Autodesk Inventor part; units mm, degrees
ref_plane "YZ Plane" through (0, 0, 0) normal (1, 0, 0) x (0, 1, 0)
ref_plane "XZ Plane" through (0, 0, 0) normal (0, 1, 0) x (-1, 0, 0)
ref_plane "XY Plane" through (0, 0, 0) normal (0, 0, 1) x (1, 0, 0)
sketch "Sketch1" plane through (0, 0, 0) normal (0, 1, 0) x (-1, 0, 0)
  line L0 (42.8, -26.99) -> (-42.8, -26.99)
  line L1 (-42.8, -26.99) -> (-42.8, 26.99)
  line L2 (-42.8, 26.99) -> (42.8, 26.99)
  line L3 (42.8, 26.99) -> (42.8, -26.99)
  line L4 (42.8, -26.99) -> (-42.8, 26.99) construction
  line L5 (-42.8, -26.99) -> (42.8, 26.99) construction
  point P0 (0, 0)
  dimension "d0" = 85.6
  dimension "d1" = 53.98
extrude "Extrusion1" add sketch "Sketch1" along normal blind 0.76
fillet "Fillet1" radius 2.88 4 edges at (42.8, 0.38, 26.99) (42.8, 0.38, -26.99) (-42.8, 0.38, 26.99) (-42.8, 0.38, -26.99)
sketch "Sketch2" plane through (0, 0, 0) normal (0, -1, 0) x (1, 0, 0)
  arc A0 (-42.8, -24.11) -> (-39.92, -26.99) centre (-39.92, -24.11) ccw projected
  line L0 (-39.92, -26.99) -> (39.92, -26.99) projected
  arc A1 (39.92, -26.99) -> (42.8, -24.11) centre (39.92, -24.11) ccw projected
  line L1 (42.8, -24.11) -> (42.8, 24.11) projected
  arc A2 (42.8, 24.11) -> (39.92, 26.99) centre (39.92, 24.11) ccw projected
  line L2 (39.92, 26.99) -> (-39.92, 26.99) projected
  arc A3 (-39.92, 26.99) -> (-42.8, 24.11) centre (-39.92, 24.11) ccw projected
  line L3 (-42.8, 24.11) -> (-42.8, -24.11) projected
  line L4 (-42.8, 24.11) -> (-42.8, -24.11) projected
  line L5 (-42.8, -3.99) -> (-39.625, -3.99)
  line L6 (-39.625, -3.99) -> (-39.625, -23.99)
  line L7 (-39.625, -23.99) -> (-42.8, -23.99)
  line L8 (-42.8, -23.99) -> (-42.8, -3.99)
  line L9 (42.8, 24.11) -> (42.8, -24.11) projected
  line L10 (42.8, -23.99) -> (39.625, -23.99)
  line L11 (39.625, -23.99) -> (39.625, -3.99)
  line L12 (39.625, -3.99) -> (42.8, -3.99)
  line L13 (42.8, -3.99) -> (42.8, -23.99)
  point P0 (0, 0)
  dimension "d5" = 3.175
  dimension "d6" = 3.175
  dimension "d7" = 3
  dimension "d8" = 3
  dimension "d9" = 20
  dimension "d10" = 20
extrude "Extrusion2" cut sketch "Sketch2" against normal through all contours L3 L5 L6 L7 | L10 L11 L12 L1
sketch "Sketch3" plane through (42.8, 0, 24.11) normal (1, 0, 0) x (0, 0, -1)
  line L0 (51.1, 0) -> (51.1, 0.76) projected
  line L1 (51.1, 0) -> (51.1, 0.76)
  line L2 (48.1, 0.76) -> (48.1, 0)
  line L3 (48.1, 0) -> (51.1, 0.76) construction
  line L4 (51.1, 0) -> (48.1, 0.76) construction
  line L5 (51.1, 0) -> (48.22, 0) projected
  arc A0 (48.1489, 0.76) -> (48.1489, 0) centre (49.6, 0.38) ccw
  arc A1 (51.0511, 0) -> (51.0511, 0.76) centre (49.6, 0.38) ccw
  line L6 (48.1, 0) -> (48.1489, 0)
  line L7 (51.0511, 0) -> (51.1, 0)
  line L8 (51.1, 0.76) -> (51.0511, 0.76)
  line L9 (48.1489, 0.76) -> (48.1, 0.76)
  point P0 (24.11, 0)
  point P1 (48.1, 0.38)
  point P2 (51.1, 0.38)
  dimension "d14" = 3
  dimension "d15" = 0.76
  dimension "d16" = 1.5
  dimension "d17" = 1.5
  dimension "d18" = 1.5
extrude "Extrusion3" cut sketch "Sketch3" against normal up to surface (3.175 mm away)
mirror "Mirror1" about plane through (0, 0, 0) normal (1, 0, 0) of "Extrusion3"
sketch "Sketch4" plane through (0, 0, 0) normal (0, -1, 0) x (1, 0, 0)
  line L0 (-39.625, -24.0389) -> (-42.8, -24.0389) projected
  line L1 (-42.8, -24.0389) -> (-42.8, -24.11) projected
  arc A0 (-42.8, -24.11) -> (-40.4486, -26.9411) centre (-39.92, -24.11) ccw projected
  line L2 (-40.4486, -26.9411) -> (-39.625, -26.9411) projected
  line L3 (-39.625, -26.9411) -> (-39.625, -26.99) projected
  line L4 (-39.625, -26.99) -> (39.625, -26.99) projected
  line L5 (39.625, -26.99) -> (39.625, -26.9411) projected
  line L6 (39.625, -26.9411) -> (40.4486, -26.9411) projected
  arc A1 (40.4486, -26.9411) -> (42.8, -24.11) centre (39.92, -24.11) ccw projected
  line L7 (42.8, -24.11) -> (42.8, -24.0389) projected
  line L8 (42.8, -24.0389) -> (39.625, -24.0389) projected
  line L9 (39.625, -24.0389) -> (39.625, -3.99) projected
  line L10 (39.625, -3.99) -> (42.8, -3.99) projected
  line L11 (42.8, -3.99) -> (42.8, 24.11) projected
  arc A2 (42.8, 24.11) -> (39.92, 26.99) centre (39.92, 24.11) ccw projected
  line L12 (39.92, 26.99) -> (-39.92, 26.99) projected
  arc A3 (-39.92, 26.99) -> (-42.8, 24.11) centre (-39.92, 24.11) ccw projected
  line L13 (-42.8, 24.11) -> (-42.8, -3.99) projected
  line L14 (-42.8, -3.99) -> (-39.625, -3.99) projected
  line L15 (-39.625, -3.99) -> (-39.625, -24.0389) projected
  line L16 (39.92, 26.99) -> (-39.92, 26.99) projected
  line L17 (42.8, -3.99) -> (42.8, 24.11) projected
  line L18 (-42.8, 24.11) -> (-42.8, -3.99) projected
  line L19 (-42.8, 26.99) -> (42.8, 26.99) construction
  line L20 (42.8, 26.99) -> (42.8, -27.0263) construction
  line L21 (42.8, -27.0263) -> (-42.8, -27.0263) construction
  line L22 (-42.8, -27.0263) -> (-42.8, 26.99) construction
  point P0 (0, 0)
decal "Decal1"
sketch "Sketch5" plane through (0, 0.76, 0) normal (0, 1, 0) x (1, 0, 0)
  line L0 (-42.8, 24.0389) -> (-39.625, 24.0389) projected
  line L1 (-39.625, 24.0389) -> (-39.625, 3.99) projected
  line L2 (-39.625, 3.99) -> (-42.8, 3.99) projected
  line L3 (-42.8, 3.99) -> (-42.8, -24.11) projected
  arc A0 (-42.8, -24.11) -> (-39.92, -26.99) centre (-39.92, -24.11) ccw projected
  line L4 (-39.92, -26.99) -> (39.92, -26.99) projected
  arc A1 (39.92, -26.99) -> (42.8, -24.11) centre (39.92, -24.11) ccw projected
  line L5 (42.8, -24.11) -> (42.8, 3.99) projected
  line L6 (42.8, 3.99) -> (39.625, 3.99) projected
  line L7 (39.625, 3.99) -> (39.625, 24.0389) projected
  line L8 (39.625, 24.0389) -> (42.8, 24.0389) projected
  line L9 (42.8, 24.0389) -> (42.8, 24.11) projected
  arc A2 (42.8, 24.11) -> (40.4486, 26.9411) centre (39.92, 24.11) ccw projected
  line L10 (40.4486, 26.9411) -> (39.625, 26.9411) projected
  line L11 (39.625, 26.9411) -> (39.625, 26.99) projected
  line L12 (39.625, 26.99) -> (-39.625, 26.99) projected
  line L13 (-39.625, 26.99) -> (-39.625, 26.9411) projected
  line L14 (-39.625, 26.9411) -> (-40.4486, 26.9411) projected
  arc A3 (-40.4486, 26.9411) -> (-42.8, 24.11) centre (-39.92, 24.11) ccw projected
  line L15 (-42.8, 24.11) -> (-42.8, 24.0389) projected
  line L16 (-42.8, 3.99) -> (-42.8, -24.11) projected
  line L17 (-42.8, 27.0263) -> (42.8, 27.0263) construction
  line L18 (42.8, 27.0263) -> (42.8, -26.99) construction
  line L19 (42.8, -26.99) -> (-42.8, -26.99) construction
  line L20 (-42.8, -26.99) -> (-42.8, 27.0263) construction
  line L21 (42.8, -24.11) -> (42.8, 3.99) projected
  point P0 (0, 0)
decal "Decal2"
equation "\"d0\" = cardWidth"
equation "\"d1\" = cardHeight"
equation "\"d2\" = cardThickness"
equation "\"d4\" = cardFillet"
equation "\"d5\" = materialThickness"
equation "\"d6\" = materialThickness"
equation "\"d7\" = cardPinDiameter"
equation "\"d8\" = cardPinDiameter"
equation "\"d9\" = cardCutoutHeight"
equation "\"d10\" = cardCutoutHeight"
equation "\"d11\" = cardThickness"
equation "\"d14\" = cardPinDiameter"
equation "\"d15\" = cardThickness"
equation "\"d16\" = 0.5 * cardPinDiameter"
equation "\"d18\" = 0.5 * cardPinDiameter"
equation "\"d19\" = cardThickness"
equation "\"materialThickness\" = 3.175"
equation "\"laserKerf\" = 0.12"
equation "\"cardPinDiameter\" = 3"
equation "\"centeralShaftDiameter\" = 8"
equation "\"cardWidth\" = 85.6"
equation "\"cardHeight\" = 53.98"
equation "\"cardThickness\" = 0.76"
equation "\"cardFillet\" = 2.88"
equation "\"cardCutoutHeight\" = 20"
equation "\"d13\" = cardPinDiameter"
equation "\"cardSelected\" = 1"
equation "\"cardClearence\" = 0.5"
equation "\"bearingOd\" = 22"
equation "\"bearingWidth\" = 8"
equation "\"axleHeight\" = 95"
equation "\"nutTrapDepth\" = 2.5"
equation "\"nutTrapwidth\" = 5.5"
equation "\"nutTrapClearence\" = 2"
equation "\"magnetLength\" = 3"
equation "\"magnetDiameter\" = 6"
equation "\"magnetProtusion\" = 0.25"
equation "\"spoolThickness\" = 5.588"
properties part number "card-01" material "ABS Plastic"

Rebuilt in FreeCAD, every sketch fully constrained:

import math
import FreeCAD as App
import Part
import Sketcher


def edges_at(feature, points):
    """Names of the edges that pass closest to the given points."""
    edges = feature.Shape.Edges
    near = lambda p: min(range(len(edges)), key=lambda i: edges[i].distToShape(Part.Vertex(*p))[0])
    return sorted({f"Edge{near(p) + 1}" for p in points})


def add_polygon(sketch, points):
    """Adds a closed chain of lines whose ends are joined by coincident constraints."""
    first, n = sketch.GeometryCount, len(points)
    for a, b in zip(points, points[1:] + points[:1]):
        sketch.addGeometry(Part.LineSegment(App.Vector(*a, 0), App.Vector(*b, 0)), False)
    for i in range(n):
        sketch.addConstraint(Sketcher.Constraint("Coincident", first + i, 2, first + (i + 1) % n, 1))

doc = App.newDocument("Part")
body = doc.addObject("PartDesign::Body", "Body")

# Sketch on XZ plane
sketch1 = doc.addObject("Sketcher::SketchObject", "Sketch")
body.addObject(sketch1)
sketch1.AttachmentSupport = (doc.XZ_Plane, [""])
sketch1.MapMode = "FlatFace"
add_polygon(sketch1, [(43, -27), (-43, -27), (-43, 27), (43, 27)])  # lines 0-3
sketch1.addConstraint([
    Sketcher.Constraint("Horizontal", 0),
    Sketcher.Constraint("Vertical", 1),
    Sketcher.Constraint("Horizontal", 2),
    Sketcher.Constraint("Vertical", 3),
    Sketcher.Constraint("Symmetric", 0, 2, 2, 2, -1, 1),
    Sketcher.Constraint("DistanceX", 0, 2, 0, 1, 85.6),
    Sketcher.Constraint("DistanceY", 1, 1, 1, 2, 53.98),
])
pad1 = doc.addObject("PartDesign::Pad", "Pad")
body.addObject(pad1)
pad1.Profile = sketch1
pad1.Length = 0.76
pad1.Reversed = True
doc.recompute()

fillet = doc.addObject("PartDesign::Fillet", "Fillet")
body.addObject(fillet)
fillet.Base = (pad1, edges_at(pad1, [
    (42.8, 0.38, 26.99),
    (42.8, 0.38, -26.99),
    (-42.8, 0.38, 26.99),
    (-42.8, 0.38, -26.99),
]))
fillet.Radius = 2.88

# Sketch on XZ plane
sketch2 = doc.addObject("Sketcher::SketchObject", "Sketch001")
body.addObject(sketch2)
sketch2.AttachmentSupport = (doc.XZ_Plane, [""])
sketch2.MapMode = "FlatFace"
add_polygon(sketch2, [(-42.8, -4), (-42.8, -24), (-39.6, -24), (-39.6, -4)])  # lines 0-3
add_polygon(sketch2, [(39.6, -24), (42.8, -24), (42.8, -4), (39.6, -4)])  # lines 4-7
sketch2.addConstraint([
    Sketcher.Constraint("Vertical", 0),
    Sketcher.Constraint("Horizontal", 1),
    Sketcher.Constraint("Vertical", 2),
    Sketcher.Constraint("Horizontal", 3),
    Sketcher.Constraint("Horizontal", 4),
    Sketcher.Constraint("Vertical", 5),
    Sketcher.Constraint("Horizontal", 6),
    Sketcher.Constraint("Vertical", 7),
    Sketcher.Constraint("Symmetric", 0, 2, 4, 2, -2),
    Sketcher.Constraint("Symmetric", 2, 2, 6, 2, -2),
    Sketcher.Constraint("DistanceY", 0, 2, 0, 1, 20.0),
    Sketcher.Constraint("DistanceX", 1, 1, 1, 2, 3.175),
    Sketcher.Constraint("DistanceX", 0, 2, -1, 1, 42.8),
    Sketcher.Constraint("DistanceY", 0, 2, -1, 1, 23.99),
])
pocket1 = doc.addObject("PartDesign::Pocket", "Pocket")
body.addObject(pocket1)
pocket1.Profile = sketch2
pocket1.Type = "ThroughAll"

# Sketch on YZ plane
sketch3 = doc.addObject("Sketcher::SketchObject", "Sketch002")
body.addObject(sketch3)
sketch3.AttachmentSupport = (doc.YZ_Plane, [""])
sketch3.MapMode = "FlatFace"
sketch3.AttachmentOffset = App.Placement(App.Vector(0, 0, 42.8), App.Rotation())
sketch3.addGeometry([
    Part.LineSegment(App.Vector(0, -26.941, 0), App.Vector(0, -26.99, 0)),  # 0
    Part.LineSegment(App.Vector(0, -26.99, 0), App.Vector(0.38, -26.99, 0)),  # 1
    Part.ArcOfCircle(Part.Circle(App.Vector(0.38, -25.49, 0), App.Vector(0, 0, 1), 1.5), math.radians(-104.67), math.radians(-90)),  # 2
    Part.ArcOfCircle(Part.Circle(App.Vector(0.38, -25.49, 0), App.Vector(0, 0, 1), 1.5), math.radians(-90), math.radians(-75.33)),  # 3
    Part.LineSegment(App.Vector(0.38, -26.99, 0), App.Vector(0.76, -26.99, 0)),  # 4
    Part.LineSegment(App.Vector(0.76, -26.99, 0), App.Vector(0.76, -26.941, 0)),  # 5
    Part.LineSegment(App.Vector(0.76, -24.039, 0), App.Vector(0.76, -23.99, 0)),  # 6
    Part.LineSegment(App.Vector(0.76, -23.99, 0), App.Vector(0.38, -23.99, 0)),  # 7
    Part.ArcOfCircle(Part.Circle(App.Vector(0.38, -25.49, 0), App.Vector(0, 0, 1), 1.5), math.radians(75.33), math.radians(90)),  # 8
    Part.ArcOfCircle(Part.Circle(App.Vector(0.38, -25.49, 0), App.Vector(0, 0, 1), 1.5), math.radians(90), math.radians(104.67)),  # 9
    Part.LineSegment(App.Vector(0.38, -23.99, 0), App.Vector(0, -23.99, 0)),  # 10
    Part.LineSegment(App.Vector(0, -23.99, 0), App.Vector(0, -24.039, 0)),  # 11
], False)
sketch3.addConstraint([
    Sketcher.Constraint("Coincident", 0, 2, 1, 1),
    Sketcher.Constraint("Tangent", 1, 2, 2, 2),
    Sketcher.Constraint("Coincident", 2, 1, 0, 1),
    Sketcher.Constraint("Tangent", 3, 1, 4, 1),
    Sketcher.Constraint("Coincident", 4, 2, 5, 1),
    Sketcher.Constraint("Coincident", 5, 2, 3, 2),
    Sketcher.Constraint("Coincident", 6, 2, 7, 1),
    Sketcher.Constraint("Tangent", 7, 2, 8, 2),
    Sketcher.Constraint("Coincident", 8, 1, 6, 1),
    Sketcher.Constraint("Tangent", 9, 1, 10, 1),
    Sketcher.Constraint("Coincident", 10, 2, 11, 1),
    Sketcher.Constraint("Coincident", 11, 2, 9, 2),
    Sketcher.Constraint("Vertical", 0),
    Sketcher.Constraint("Horizontal", 1),
    Sketcher.Constraint("Horizontal", 4),
    Sketcher.Constraint("Vertical", 5),
    Sketcher.Constraint("Vertical", 6),
    Sketcher.Constraint("Horizontal", 7),
    Sketcher.Constraint("Horizontal", 10),
    Sketcher.Constraint("Vertical", 11),
    Sketcher.Constraint("Coincident", 3, 3, 2, 3),
    Sketcher.Constraint("Coincident", 8, 3, 2, 3),
    Sketcher.Constraint("Coincident", 9, 3, 2, 3),
    Sketcher.Constraint("Equal", 2, 3),
    Sketcher.Constraint("Equal", 3, 8),
    Sketcher.Constraint("Equal", 8, 9),
    Sketcher.Constraint("PointOnObject", 0, 2, -2),
    Sketcher.Constraint("PointOnObject", 10, 2, -2),
    Sketcher.Constraint("Horizontal", 2, 1, 5, 2),
    Sketcher.Constraint("Horizontal", 8, 1, 11, 2),
    Sketcher.Constraint("Radius", 2, 1.5),
    Sketcher.Constraint("DistanceX", -1, 1, 4, 2, 0.76),
    Sketcher.Constraint("DistanceY", 2, 3, -1, 1, 25.49),
])
pocket2 = doc.addObject("PartDesign::Pocket", "Pocket001")
body.addObject(pocket2)
pocket2.Profile = sketch3
pocket2.Length = 3.175
doc.recompute()

mirrored = doc.addObject("PartDesign::Mirrored", "Mirrored")
body.addObject(mirrored)
mirrored.Originals = [pocket2]
mirrored.MirrorPlane = (doc.YZ_Plane, [""])
body.Tip = mirrored

doc.recompute()
